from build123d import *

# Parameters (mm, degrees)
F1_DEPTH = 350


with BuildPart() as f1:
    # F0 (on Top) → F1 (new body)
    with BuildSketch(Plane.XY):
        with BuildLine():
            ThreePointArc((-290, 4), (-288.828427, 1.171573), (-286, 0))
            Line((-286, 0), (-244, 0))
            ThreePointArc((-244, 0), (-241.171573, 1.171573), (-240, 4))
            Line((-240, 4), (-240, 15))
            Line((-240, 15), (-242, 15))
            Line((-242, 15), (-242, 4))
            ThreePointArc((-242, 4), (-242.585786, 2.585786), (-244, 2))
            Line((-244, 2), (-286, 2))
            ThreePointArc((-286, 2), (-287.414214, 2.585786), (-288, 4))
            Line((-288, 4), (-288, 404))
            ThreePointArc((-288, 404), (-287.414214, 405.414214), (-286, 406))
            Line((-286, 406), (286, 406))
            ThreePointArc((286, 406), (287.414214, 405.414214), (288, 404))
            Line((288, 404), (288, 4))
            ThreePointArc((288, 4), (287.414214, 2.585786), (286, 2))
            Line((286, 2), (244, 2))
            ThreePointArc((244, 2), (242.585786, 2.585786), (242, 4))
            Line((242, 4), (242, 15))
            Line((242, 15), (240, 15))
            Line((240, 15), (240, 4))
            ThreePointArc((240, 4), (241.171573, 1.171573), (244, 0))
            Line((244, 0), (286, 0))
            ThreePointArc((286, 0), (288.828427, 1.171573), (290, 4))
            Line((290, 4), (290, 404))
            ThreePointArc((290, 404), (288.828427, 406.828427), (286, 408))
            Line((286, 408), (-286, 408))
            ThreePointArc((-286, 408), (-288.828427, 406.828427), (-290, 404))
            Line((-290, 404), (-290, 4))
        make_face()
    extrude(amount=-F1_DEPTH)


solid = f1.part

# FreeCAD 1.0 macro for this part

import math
import FreeCAD as App
import Part
import Sketcher
Q = App.Units.Quantity

doc = App.newDocument("Part")
body = doc.addObject("PartDesign::Body", "Body")

# Sketch on XY plane
sketch1 = body.newObject("Sketcher::SketchObject", "Sketch")
sketch1.AttachmentSupport = (doc.getObject("XY_Plane"), [""])
sketch1.MapMode = "FlatFace"
sketch1.addGeometry(Part.ArcOfCircle(Part.Circle(App.Vector(-286, 4, 0), App.Vector(0, 0, 1), 4), math.radians(-179.999994), math.radians(-90.000006)), False)
sketch1.addGeometry(Part.LineSegment(App.Vector(-286, 0, 0), App.Vector(-244, 0, 0)), False)
sketch1.addGeometry(Part.ArcOfCircle(Part.Circle(App.Vector(-244, 4, 0), App.Vector(0, 0, 1), 4), math.radians(-89.999994), math.radians(-0.000006)), False)
sketch1.addGeometry(Part.LineSegment(App.Vector(-240, 4, 0), App.Vector(-240, 15, 0)), False)
sketch1.addGeometry(Part.LineSegment(App.Vector(-240, 15, 0), App.Vector(-242, 15, 0)), False)
sketch1.addGeometry(Part.LineSegment(App.Vector(-242, 15, 0), App.Vector(-242, 4, 0)), False)
sketch1.addGeometry(Part.ArcOfCircle(Part.Circle(App.Vector(-243.999999, 3.999999, 0), App.Vector(0, 0, 1), 1.999999), math.radians(-90.000043), math.radians(0.000043)), False)
sketch1.addGeometry(Part.LineSegment(App.Vector(-244, 2, 0), App.Vector(-286, 2, 0)), False)
sketch1.addGeometry(Part.ArcOfCircle(Part.Circle(App.Vector(-286.000001, 3.999999, 0), App.Vector(0, 0, 1), 1.999999), math.radians(179.999957), math.radians(270.000043)), False)
sketch1.addGeometry(Part.LineSegment(App.Vector(-288, 4, 0), App.Vector(-288, 404, 0)), False)
sketch1.addGeometry(Part.ArcOfCircle(Part.Circle(App.Vector(-286.000001, 404.000001, 0), App.Vector(0, 0, 1), 1.999999), math.radians(89.999957), math.radians(180.000043)), False)
sketch1.addGeometry(Part.LineSegment(App.Vector(-286, 406, 0), App.Vector(286, 406, 0)), False)
sketch1.addGeometry(Part.ArcOfCircle(Part.Circle(App.Vector(286.000001, 404.000001, 0), App.Vector(0, 0, 1), 1.999999), math.radians(-0.000043), math.radians(90.000043)), False)
sketch1.addGeometry(Part.LineSegment(App.Vector(288, 404, 0), App.Vector(288, 4, 0)), False)
sketch1.addGeometry(Part.ArcOfCircle(Part.Circle(App.Vector(286.000001, 3.999999, 0), App.Vector(0, 0, 1), 1.999999), math.radians(-90.000043), math.radians(0.000043)), False)
sketch1.addGeometry(Part.LineSegment(App.Vector(286, 2, 0), App.Vector(244, 2, 0)), False)
sketch1.addGeometry(Part.ArcOfCircle(Part.Circle(App.Vector(243.999999, 3.999999, 0), App.Vector(0, 0, 1), 1.999999), math.radians(179.999957), math.radians(270.000043)), False)
sketch1.addGeometry(Part.LineSegment(App.Vector(242, 4, 0), App.Vector(242, 15, 0)), False)
sketch1.addGeometry(Part.LineSegment(App.Vector(242, 15, 0), App.Vector(240, 15, 0)), False)
sketch1.addGeometry(Part.LineSegment(App.Vector(240, 15, 0), App.Vector(240, 4, 0)), False)
sketch1.addGeometry(Part.ArcOfCircle(Part.Circle(App.Vector(244, 4, 0), App.Vector(0, 0, 1), 4), math.radians(-179.999994), math.radians(-90.000006)), False)
sketch1.addGeometry(Part.LineSegment(App.Vector(244, 0, 0), App.Vector(286, 0, 0)), False)
sketch1.addGeometry(Part.ArcOfCircle(Part.Circle(App.Vector(286, 4, 0), App.Vector(0, 0, 1), 4), math.radians(-89.999994), math.radians(-0.000006)), False)
sketch1.addGeometry(Part.LineSegment(App.Vector(290, 4, 0), App.Vector(290, 404, 0)), False)
sketch1.addGeometry(Part.ArcOfCircle(Part.Circle(App.Vector(286, 404, 0), App.Vector(0, 0, 1), 4), math.radians(0.000006), math.radians(89.999994)), False)
sketch1.addGeometry(Part.LineSegment(App.Vector(286, 408, 0), App.Vector(-286, 408, 0)), False)
sketch1.addGeometry(Part.ArcOfCircle(Part.Circle(App.Vector(-286, 404, 0), App.Vector(0, 0, 1), 4), math.radians(90.000006), math.radians(179.999994)), False)
sketch1.addGeometry(Part.LineSegment(App.Vector(-290, 404, 0), App.Vector(-290, 4, 0)), False)
sketch1.addConstraint(Sketcher.Constraint("Tangent", 0, 2, 1, 1))
sketch1.addConstraint(Sketcher.Constraint("Tangent", 1, 2, 2, 1))
sketch1.addConstraint(Sketcher.Constraint("Tangent", 2, 2, 3, 1))
sketch1.addConstraint(Sketcher.Constraint("Coincident", 3, 2, 4, 1))
sketch1.addConstraint(Sketcher.Constraint("Coincident", 4, 2, 5, 1))
sketch1.addConstraint(Sketcher.Constraint("Tangent", 5, 2, 6, 2))
sketch1.addConstraint(Sketcher.Constraint("Tangent", 6, 1, 7, 1))
sketch1.addConstraint(Sketcher.Constraint("Tangent", 7, 2, 8, 2))
sketch1.addConstraint(Sketcher.Constraint("Tangent", 8, 1, 9, 1))
sketch1.addConstraint(Sketcher.Constraint("Tangent", 9, 2, 10, 2))
sketch1.addConstraint(Sketcher.Constraint("Tangent", 10, 1, 11, 1))
sketch1.addConstraint(Sketcher.Constraint("Tangent", 11, 2, 12, 2))
sketch1.addConstraint(Sketcher.Constraint("Tangent", 12, 1, 13, 1))
sketch1.addConstraint(Sketcher.Constraint("Tangent", 13, 2, 14, 2))
sketch1.addConstraint(Sketcher.Constraint("Tangent", 14, 1, 15, 1))
sketch1.addConstraint(Sketcher.Constraint("Tangent", 15, 2, 16, 2))
sketch1.addConstraint(Sketcher.Constraint("Tangent", 16, 1, 17, 1))
sketch1.addConstraint(Sketcher.Constraint("Coincident", 17, 2, 18, 1))
sketch1.addConstraint(Sketcher.Constraint("Coincident", 18, 2, 19, 1))
sketch1.addConstraint(Sketcher.Constraint("Tangent", 19, 2, 20, 1))
sketch1.addConstraint(Sketcher.Constraint("Tangent", 20, 2, 21, 1))
sketch1.addConstraint(Sketcher.Constraint("Tangent", 21, 2, 22, 1))
sketch1.addConstraint(Sketcher.Constraint("Tangent", 22, 2, 23, 1))
sketch1.addConstraint(Sketcher.Constraint("Tangent", 23, 2, 24, 1))
sketch1.addConstraint(Sketcher.Constraint("Tangent", 24, 2, 25, 1))
sketch1.addConstraint(Sketcher.Constraint("Tangent", 25, 2, 26, 1))
sketch1.addConstraint(Sketcher.Constraint("Tangent", 26, 2, 27, 1))
sketch1.addConstraint(Sketcher.Constraint("Tangent", 27, 2, 0, 1))
sketch1.addConstraint(Sketcher.Constraint("Horizontal", 1))
sketch1.addConstraint(Sketcher.Constraint("Vertical", 3))
sketch1.addConstraint(Sketcher.Constraint("Horizontal", 4))
sketch1.addConstraint(Sketcher.Constraint("Vertical", 5))
sketch1.addConstraint(Sketcher.Constraint("Horizontal", 7))
sketch1.addConstraint(Sketcher.Constraint("Vertical", 9))
sketch1.addConstraint(Sketcher.Constraint("Horizontal", 11))
sketch1.addConstraint(Sketcher.Constraint("Vertical", 13))
sketch1.addConstraint(Sketcher.Constraint("Horizontal", 15))
sketch1.addConstraint(Sketcher.Constraint("Vertical", 17))
sketch1.addConstraint(Sketcher.Constraint("Horizontal", 18))
sketch1.addConstraint(Sketcher.Constraint("Vertical", 19))
sketch1.addConstraint(Sketcher.Constraint("Horizontal", 21))
sketch1.addConstraint(Sketcher.Constraint("Vertical", 23))
sketch1.addConstraint(Sketcher.Constraint("Horizontal", 25))
sketch1.addConstraint(Sketcher.Constraint("Vertical", 27))
sketch1.addConstraint(Sketcher.Constraint("Coincident", 6, 3, 2, 3))
sketch1.addConstraint(Sketcher.Constraint("Coincident", 8, 3, 0, 3))
sketch1.addConstraint(Sketcher.Constraint("Coincident", 20, 3, 16, 3))
sketch1.addConstraint(Sketcher.Constraint("Coincident", 22, 3, 14, 3))
sketch1.addConstraint(Sketcher.Constraint("Coincident", 24, 3, 12, 3))
sketch1.addConstraint(Sketcher.Constraint("Coincident", 26, 3, 10, 3))
sketch1.addConstraint(Sketcher.Constraint("Equal", 0, 2))
sketch1.addConstraint(Sketcher.Constraint("Equal", 8, 10))
sketch1.addConstraint(Sketcher.Constraint("Equal", 10, 12))
sketch1.addConstraint(Sketcher.Constraint("Equal", 12, 14))
sketch1.addConstraint(Sketcher.Constraint("Equal", 14, 16))
sketch1.addConstraint(Sketcher.Constraint("Symmetric", 1, 2, 20, 2, -1, 1))
sketch1.addConstraint(Sketcher.Constraint("Symmetric", 0, 3, 14, 3, -2))
sketch1.addConstraint(Sketcher.Constraint("Horizontal", 4, 2, 17, 2))
sketch1.addConstraint(Sketcher.Constraint("Radius", 0, Q("4 mm")))
sketch1.addConstraint(Sketcher.Constraint("Radius", 6, Q("1.999999 mm")))
sketch1.addConstraint(Sketcher.Constraint("DistanceX", 1, 1, 1, 2, Q("42 mm")))
sketch1.addConstraint(Sketcher.Constraint("DistanceX", 11, 1, 11, 2, Q("572 mm")))
sketch1.addConstraint(Sketcher.Constraint("DistanceY", 3, 1, 3, 2, Q("11 mm")))
sketch1.addConstraint(Sketcher.Constraint("DistanceY", 9, 1, 9, 2, Q("400 mm")))
pad1 = body.newObject("PartDesign::Pad", "Pad")
pad1.Profile = sketch1
pad1.Length = 350
pad1.Reversed = True

doc.recompute()
